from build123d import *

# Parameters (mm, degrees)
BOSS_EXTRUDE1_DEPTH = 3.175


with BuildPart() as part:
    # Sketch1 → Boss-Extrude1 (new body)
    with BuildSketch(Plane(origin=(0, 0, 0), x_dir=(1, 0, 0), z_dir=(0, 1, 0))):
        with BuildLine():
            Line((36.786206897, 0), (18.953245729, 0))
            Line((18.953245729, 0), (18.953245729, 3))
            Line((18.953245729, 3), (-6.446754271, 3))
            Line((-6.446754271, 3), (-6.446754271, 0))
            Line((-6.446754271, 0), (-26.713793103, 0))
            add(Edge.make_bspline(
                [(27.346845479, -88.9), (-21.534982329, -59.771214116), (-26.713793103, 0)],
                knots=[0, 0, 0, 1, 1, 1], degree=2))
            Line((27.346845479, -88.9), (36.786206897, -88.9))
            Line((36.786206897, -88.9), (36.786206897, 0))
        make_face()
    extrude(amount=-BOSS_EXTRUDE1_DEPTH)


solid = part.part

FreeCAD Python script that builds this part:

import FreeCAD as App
import Part
import Sketcher
Q = App.Units.Quantity

doc = App.newDocument("Part")
body = doc.addObject("PartDesign::Body", "Body")

sketch1 = body.newObject("Sketcher::SketchObject", "Sketch")
sketch1.AttachmentSupport = (doc.getObject("XZ_Plane"), [""])
sketch1.MapMode = "FlatFace"
sketch1.addGeometry(Part.LineSegment(App.Vector(36.786207, 0, 0), App.Vector(18.953246, 0, 0)), False)
sketch1.addGeometry(Part.LineSegment(App.Vector(18.953246, 0, 0), App.Vector(18.953246, -3, 0)), False)
sketch1.addGeometry(Part.LineSegment(App.Vector(18.953246, -3, 0), App.Vector(-6.446754, -3, 0)), False)
sketch1.addGeometry(Part.LineSegment(App.Vector(-6.446754, -3, 0), App.Vector(-6.446754, 0, 0)), False)
sketch1.addGeometry(Part.LineSegment(App.Vector(-6.446754, 0, 0), App.Vector(-26.713793, 0, 0)), False)
sketch1.addGeometry(Part.BSplineCurve([App.Vector(27.346845, 88.9, 0), App.Vector(-21.534982, 59.771214, 0), App.Vector(-26.713793, 0, 0)], [3, 3], [0, 1], False, 2, [1, 1, 1], False), False)
sketch1.addGeometry(Part.LineSegment(App.Vector(27.346845, 88.9, 0), App.Vector(36.786207, 88.9, 0)), False)
sketch1.addGeometry(Part.LineSegment(App.Vector(36.786207, 88.9, 0), App.Vector(36.786207, 0, 0)), False)
sketch1.addConstraint(Sketcher.Constraint("Block", 5))
sketch1.addConstraint(Sketcher.Constraint("Coincident", 0, 2, 1, 1))
sketch1.addConstraint(Sketcher.Constraint("Coincident", 1, 2, 2, 1))
sketch1.addConstraint(Sketcher.Constraint("Coincident", 2, 2, 3, 1))
sketch1.addConstraint(Sketcher.Constraint("Coincident", 3, 2, 4, 1))
sketch1.addConstraint(Sketcher.Constraint("Coincident", 4, 2, 5, 2))
sketch1.addConstraint(Sketcher.Constraint("Coincident", 5, 1, 6, 1))
sketch1.addConstraint(Sketcher.Constraint("Coincident", 6, 2, 7, 1))
sketch1.addConstraint(Sketcher.Constraint("Coincident", 7, 2, 0, 1))
sketch1.addConstraint(Sketcher.Constraint("Horizontal", 0))
sketch1.addConstraint(Sketcher.Constraint("Vertical", 1))
sketch1.addConstraint(Sketcher.Constraint("Horizontal", 2))
sketch1.addConstraint(Sketcher.Constraint("Vertical", 3))
sketch1.addConstraint(Sketcher.Constraint("Horizontal", 4))
sketch1.addConstraint(Sketcher.Constraint("Horizontal", 6))
sketch1.addConstraint(Sketcher.Constraint("Vertical", 7))
sketch1.addConstraint(Sketcher.Constraint("PointOnObject", 0, 2, -1))
sketch1.addConstraint(Sketcher.Constraint("DistanceX", 2, 2, 2, 1, Q("1 in")))
sketch1.addConstraint(Sketcher.Constraint("DistanceX", 4, 2, 6, 2, Q("2.5 in")))
sketch1.addConstraint(Sketcher.Constraint("DistanceY", 1, 2, 1, 1, 3.0))
sketch1.addConstraint(Sketcher.Constraint("DistanceX", 0, 2, 0, 1, 17.832961))
pad1 = body.newObject("PartDesign::Pad", "Pad")
pad1.Profile = sketch1
pad1.Length = Q("0.125 in")

doc.recompute()
